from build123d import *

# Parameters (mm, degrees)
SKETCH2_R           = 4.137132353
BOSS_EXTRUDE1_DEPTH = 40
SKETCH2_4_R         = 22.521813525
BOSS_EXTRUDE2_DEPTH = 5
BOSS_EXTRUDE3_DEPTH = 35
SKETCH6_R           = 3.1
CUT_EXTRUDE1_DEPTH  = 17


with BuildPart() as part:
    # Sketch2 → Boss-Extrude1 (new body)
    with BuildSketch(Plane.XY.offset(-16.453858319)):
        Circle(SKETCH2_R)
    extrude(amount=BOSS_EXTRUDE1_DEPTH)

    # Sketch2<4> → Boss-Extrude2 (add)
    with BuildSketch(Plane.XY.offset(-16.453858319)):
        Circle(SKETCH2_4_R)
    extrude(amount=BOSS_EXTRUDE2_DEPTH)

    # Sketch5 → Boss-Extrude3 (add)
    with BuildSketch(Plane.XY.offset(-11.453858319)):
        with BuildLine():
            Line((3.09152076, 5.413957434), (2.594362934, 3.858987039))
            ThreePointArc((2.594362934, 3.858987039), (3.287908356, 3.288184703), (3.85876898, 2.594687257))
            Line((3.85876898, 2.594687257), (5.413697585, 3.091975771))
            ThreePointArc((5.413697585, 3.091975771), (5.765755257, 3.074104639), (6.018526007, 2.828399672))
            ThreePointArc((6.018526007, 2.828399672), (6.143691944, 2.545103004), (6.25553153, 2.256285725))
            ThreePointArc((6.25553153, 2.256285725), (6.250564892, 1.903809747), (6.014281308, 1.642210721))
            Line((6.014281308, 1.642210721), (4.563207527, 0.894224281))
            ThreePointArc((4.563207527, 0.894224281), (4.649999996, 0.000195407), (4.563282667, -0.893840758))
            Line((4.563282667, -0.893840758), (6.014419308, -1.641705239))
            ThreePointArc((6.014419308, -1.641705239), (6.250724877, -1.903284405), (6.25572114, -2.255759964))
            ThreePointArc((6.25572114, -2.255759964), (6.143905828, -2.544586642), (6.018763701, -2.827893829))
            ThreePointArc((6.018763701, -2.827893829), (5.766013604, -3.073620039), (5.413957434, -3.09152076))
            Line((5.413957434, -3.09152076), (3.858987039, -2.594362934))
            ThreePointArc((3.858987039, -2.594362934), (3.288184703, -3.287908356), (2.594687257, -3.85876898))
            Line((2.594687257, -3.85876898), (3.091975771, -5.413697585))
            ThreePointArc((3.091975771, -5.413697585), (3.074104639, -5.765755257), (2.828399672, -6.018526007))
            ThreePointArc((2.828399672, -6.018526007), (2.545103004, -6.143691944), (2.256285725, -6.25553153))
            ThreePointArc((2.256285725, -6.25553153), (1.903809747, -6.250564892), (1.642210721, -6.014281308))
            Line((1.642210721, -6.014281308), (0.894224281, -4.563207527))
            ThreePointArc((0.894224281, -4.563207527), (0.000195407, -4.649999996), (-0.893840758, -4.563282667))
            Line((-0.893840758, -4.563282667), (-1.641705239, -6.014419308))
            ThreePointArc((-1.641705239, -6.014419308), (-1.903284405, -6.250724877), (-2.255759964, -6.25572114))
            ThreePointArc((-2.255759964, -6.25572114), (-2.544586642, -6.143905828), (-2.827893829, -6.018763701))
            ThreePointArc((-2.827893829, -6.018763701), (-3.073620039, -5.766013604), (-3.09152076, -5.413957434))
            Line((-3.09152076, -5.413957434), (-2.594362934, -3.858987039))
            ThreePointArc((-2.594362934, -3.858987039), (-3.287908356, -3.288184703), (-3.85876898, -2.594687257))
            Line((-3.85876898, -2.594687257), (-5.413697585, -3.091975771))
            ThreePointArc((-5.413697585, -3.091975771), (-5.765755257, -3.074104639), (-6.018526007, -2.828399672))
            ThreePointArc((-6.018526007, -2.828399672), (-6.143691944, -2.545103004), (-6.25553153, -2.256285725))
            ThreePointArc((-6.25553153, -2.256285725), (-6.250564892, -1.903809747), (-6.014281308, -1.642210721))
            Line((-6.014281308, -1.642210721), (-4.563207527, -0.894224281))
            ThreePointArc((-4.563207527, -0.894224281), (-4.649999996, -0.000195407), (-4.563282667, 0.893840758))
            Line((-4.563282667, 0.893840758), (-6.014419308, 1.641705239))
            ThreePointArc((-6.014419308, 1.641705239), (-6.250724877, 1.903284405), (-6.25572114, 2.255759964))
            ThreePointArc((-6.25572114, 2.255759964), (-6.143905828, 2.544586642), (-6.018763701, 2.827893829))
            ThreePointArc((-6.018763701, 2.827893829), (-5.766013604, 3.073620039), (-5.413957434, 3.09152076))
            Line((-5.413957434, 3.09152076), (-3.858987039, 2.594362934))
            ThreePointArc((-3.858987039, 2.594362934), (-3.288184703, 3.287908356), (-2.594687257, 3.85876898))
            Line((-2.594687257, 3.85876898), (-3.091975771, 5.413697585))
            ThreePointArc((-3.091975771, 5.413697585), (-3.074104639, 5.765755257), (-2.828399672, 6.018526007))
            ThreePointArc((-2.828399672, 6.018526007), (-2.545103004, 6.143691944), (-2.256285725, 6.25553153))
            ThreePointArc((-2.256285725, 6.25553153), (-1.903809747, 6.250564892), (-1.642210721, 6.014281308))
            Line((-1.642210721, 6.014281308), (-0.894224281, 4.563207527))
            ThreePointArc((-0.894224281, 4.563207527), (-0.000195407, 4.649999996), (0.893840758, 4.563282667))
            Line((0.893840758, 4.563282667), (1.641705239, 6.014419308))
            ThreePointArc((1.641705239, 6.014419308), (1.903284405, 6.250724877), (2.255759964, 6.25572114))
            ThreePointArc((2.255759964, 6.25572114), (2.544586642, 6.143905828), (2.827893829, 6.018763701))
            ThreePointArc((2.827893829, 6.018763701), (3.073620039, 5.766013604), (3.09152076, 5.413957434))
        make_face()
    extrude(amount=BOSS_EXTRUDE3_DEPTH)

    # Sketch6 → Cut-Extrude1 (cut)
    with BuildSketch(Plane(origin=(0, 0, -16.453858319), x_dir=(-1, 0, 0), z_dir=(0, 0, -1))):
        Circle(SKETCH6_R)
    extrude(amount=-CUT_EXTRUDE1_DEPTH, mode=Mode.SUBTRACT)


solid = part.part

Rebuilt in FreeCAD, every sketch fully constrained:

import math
import FreeCAD as App
import Part
import Sketcher
from FreeCAD import Vector
Q = App.Units.Quantity

doc = App.newDocument("Part")
body = doc.addObject("PartDesign::Body", "Body")

# Sketch on XY plane
sketch1 = doc.addObject("Sketcher::SketchObject", "Sketch")
body.addObject(sketch1)
sketch1.AttachmentSupport = (doc.XY_Plane, [""])
sketch1.MapMode = "FlatFace"
sketch1.AttachmentOffset = App.Placement(Vector(0, 0, -16.453858), App.Rotation())
sketch1.addGeometry(Part.Circle(Vector(0, 0, 0), Vector(0, 0, 1), 4.1), False)
sketch1.addConstraint(Sketcher.Constraint("Coincident", 0, 3, -1, 1))
sketch1.addConstraint(Sketcher.Constraint("Diameter", 0, Q("8.274265 mm")))
pad1 = doc.addObject("PartDesign::Pad", "Pad")
body.addObject(pad1)
pad1.Profile = sketch1
pad1.Length = 40

# Sketch on XY plane
sketch2 = doc.addObject("Sketcher::SketchObject", "Sketch001")
body.addObject(sketch2)
sketch2.AttachmentSupport = (doc.XY_Plane, [""])
sketch2.MapMode = "FlatFace"
sketch2.AttachmentOffset = App.Placement(Vector(0, 0, -16.453858), App.Rotation())
sketch2.addGeometry(Part.Circle(Vector(0, 0, 0), Vector(0, 0, 1), 23), False)
sketch2.addConstraint(Sketcher.Constraint("Coincident", 0, 3, -1, 1))
sketch2.addConstraint(Sketcher.Constraint("Diameter", 0, Q("45.043627 mm")))
pad2 = doc.addObject("PartDesign::Pad", "Pad001")
body.addObject(pad2)
pad2.Profile = sketch2
pad2.Length = 5

# Sketch on XY plane
sketch3 = doc.addObject("Sketcher::SketchObject", "Sketch002")
body.addObject(sketch3)
sketch3.AttachmentSupport = (doc.XY_Plane, [""])
sketch3.MapMode = "FlatFace"
sketch3.AttachmentOffset = App.Placement(Vector(0, 0, -11.453858), App.Rotation())
sketch3.addGeometry(Part.LineSegment(Vector(2.59, 3.86, 0), Vector(3.09, 5.41, 0)), False)
sketch3.addGeometry(Part.ArcOfCircle(Part.Circle(Vector(2.62, 5.57, 0), Vector(0, 0, 1), 0.5), math.radians(-18), math.radians(65)), False)
sketch3.addGeometry(Part.ArcOfCircle(Part.Circle(Vector(0, 0, 0), Vector(0, 0, 1), 6.65), math.radians(64.83), math.radians(70.17)), False)
sketch3.addGeometry(Part.ArcOfCircle(Part.Circle(Vector(2.09, 5.79, 0), Vector(0, 0, 1), 0.5), math.radians(70), math.radians(153)), False)
sketch3.addGeometry(Part.LineSegment(Vector(1.64, 6.01, 0), Vector(0.89, 4.56, 0)), False)
sketch3.addGeometry(Part.ArcOfCircle(Part.Circle(Vector(0, 0, 0), Vector(0, 0, 1), 4.65), math.radians(79), math.radians(101)), False)
sketch3.addGeometry(Part.LineSegment(Vector(-0.89, 4.56, 0), Vector(-1.64, 6.01, 0)), False)
sketch3.addGeometry(Part.ArcOfCircle(Part.Circle(Vector(-2.09, 5.79, 0), Vector(0, 0, 1), 0.5), math.radians(27), math.radians(110)), False)
sketch3.addGeometry(Part.ArcOfCircle(Part.Circle(Vector(0, 0, 0), Vector(0, 0, 1), 6.65), math.radians(109.83), math.radians(115.17)), False)
sketch3.addGeometry(Part.ArcOfCircle(Part.Circle(Vector(-2.62, 5.57, 0), Vector(0, 0, 1), 0.5), math.radians(115), math.radians(198)), False)
sketch3.addGeometry(Part.LineSegment(Vector(-3.09, 5.41, 0), Vector(-2.59, 3.86, 0)), False)
sketch3.addGeometry(Part.ArcOfCircle(Part.Circle(Vector(0, 0, 0), Vector(0, 0, 1), 4.65), math.radians(124), math.radians(146)), False)
sketch3.addGeometry(Part.LineSegment(Vector(-3.86, 2.59, 0), Vector(-5.41, 3.09, 0)), False)
sketch3.addGeometry(Part.ArcOfCircle(Part.Circle(Vector(-5.57, 2.62, 0), Vector(0, 0, 1), 0.5), math.radians(72), math.radians(155)), False)
sketch3.addGeometry(Part.ArcOfCircle(Part.Circle(Vector(0, 0, 0), Vector(0, 0, 1), 6.65), math.radians(154.83), math.radians(160.17)), False)
sketch3.addGeometry(Part.ArcOfCircle(Part.Circle(Vector(-5.79, 2.09, 0), Vector(0, 0, 1), 0.5), math.radians(160), math.radians(243)), False)
sketch3.addGeometry(Part.LineSegment(Vector(-6.01, 1.64, 0), Vector(-4.56, 0.89, 0)), False)
sketch3.addGeometry(Part.ArcOfCircle(Part.Circle(Vector(0, 0, 0), Vector(0, 0, 1), 4.65), math.radians(169), math.radians(191)), False)
sketch3.addGeometry(Part.LineSegment(Vector(-4.56, -0.89, 0), Vector(-6.01, -1.64, 0)), False)
sketch3.addGeometry(Part.ArcOfCircle(Part.Circle(Vector(-5.79, -2.09, 0), Vector(0, 0, 1), 0.5), math.radians(117), math.radians(200)), False)
sketch3.addGeometry(Part.ArcOfCircle(Part.Circle(Vector(0, 0, 0), Vector(0, 0, 1), 6.65), math.radians(-160.17), math.radians(-154.83)), False)
sketch3.addGeometry(Part.ArcOfCircle(Part.Circle(Vector(-5.57, -2.62, 0), Vector(0, 0, 1), 0.5), math.radians(-155), math.radians(-72)), False)
sketch3.addGeometry(Part.LineSegment(Vector(-5.41, -3.09, 0), Vector(-3.86, -2.59, 0)), False)
sketch3.addGeometry(Part.ArcOfCircle(Part.Circle(Vector(0, 0, 0), Vector(0, 0, 1), 4.65), math.radians(-146), math.radians(-124)), False)
sketch3.addGeometry(Part.LineSegment(Vector(-2.59, -3.86, 0), Vector(-3.09, -5.41, 0)), False)
sketch3.addGeometry(Part.ArcOfCircle(Part.Circle(Vector(-2.62, -5.57, 0), Vector(0, 0, 1), 0.5), math.radians(162), math.radians(245)), False)
sketch3.addGeometry(Part.ArcOfCircle(Part.Circle(Vector(0, 0, 0), Vector(0, 0, 1), 6.65), math.radians(-115.17), math.radians(-109.83)), False)
sketch3.addGeometry(Part.ArcOfCircle(Part.Circle(Vector(-2.09, -5.79, 0), Vector(0, 0, 1), 0.5), math.radians(-110), math.radians(-27)), False)
sketch3.addGeometry(Part.LineSegment(Vector(-1.64, -6.01, 0), Vector(-0.89, -4.56, 0)), False)
sketch3.addGeometry(Part.ArcOfCircle(Part.Circle(Vector(0, 0, 0), Vector(0, 0, 1), 4.65), math.radians(-101), math.radians(-79)), False)
sketch3.addGeometry(Part.LineSegment(Vector(0.89, -4.56, 0), Vector(1.64, -6.01, 0)), False)
sketch3.addGeometry(Part.ArcOfCircle(Part.Circle(Vector(2.09, -5.79, 0), Vector(0, 0, 1), 0.5), math.radians(-153), math.radians(-70)), False)
sketch3.addGeometry(Part.ArcOfCircle(Part.Circle(Vector(0, 0, 0), Vector(0, 0, 1), 6.65), math.radians(-70.17), math.radians(-64.83)), False)
sketch3.addGeometry(Part.ArcOfCircle(Part.Circle(Vector(2.62, -5.57, 0), Vector(0, 0, 1), 0.5), math.radians(-65), math.radians(18)), False)
sketch3.addGeometry(Part.LineSegment(Vector(3.09, -5.41, 0), Vector(2.59, -3.86, 0)), False)
sketch3.addGeometry(Part.ArcOfCircle(Part.Circle(Vector(0, 0, 0), Vector(0, 0, 1), 4.65), math.radians(-56), math.radians(-34)), False)
sketch3.addGeometry(Part.LineSegment(Vector(3.86, -2.59, 0), Vector(5.41, -3.09, 0)), False)
sketch3.addGeometry(Part.ArcOfCircle(Part.Circle(Vector(5.57, -2.62, 0), Vector(0, 0, 1), 0.5), math.radians(-108), math.radians(-25)), False)
sketch3.addGeometry(Part.ArcOfCircle(Part.Circle(Vector(0, 0, 0), Vector(0, 0, 1), 6.65), math.radians(-25.17), math.radians(-19.83)), False)
sketch3.addGeometry(Part.ArcOfCircle(Part.Circle(Vector(5.79, -2.09, 0), Vector(0, 0, 1), 0.5), math.radians(-20), math.radians(63)), False)
sketch3.addGeometry(Part.LineSegment(Vector(6.01, -1.64, 0), Vector(4.56, -0.89, 0)), False)
sketch3.addGeometry(Part.ArcOfCircle(Part.Circle(Vector(0, 0, 0), Vector(0, 0, 1), 4.65), math.radians(-11), math.radians(11)), False)
sketch3.addGeometry(Part.LineSegment(Vector(4.56, 0.89, 0), Vector(6.01, 1.64, 0)), False)
sketch3.addGeometry(Part.ArcOfCircle(Part.Circle(Vector(5.79, 2.09, 0), Vector(0, 0, 1), 0.5), math.radians(-63), math.radians(20)), False)
sketch3.addGeometry(Part.ArcOfCircle(Part.Circle(Vector(0, 0, 0), Vector(0, 0, 1), 6.65), math.radians(19.83), math.radians(25.17)), False)
sketch3.addGeometry(Part.ArcOfCircle(Part.Circle(Vector(5.57, 2.62, 0), Vector(0, 0, 1), 0.5), math.radians(25), math.radians(108)), False)
sketch3.addGeometry(Part.LineSegment(Vector(5.41, 3.09, 0), Vector(3.86, 2.59, 0)), False)
sketch3.addGeometry(Part.ArcOfCircle(Part.Circle(Vector(0, 0, 0), Vector(0, 0, 1), 4.65), math.radians(34), math.radians(56)), False)
sketch3.addConstraint(Sketcher.Constraint("Tangent", 0, 2, 1, 1))
sketch3.addConstraint(Sketcher.Constraint("Tangent", 1, 2, 2, 1))
sketch3.addConstraint(Sketcher.Constraint("Tangent", 2, 2, 3, 1))
sketch3.addConstraint(Sketcher.Constraint("Tangent", 3, 2, 4, 1))
sketch3.addConstraint(Sketcher.Constraint("Coincident", 4, 2, 5, 1))
sketch3.addConstraint(Sketcher.Constraint("Coincident", 5, 2, 6, 1))
sketch3.addConstraint(Sketcher.Constraint("Tangent", 6, 2, 7, 1))
sketch3.addConstraint(Sketcher.Constraint("Tangent", 7, 2, 8, 1))
sketch3.addConstraint(Sketcher.Constraint("Tangent", 8, 2, 9, 1))
sketch3.addConstraint(Sketcher.Constraint("Tangent", 9, 2, 10, 1))
sketch3.addConstraint(Sketcher.Constraint("Coincident", 10, 2, 11, 1))
sketch3.addConstraint(Sketcher.Constraint("Coincident", 11, 2, 12, 1))
sketch3.addConstraint(Sketcher.Constraint("Tangent", 12, 2, 13, 1))
sketch3.addConstraint(Sketcher.Constraint("Tangent", 13, 2, 14, 1))
sketch3.addConstraint(Sketcher.Constraint("Tangent", 14, 2, 15, 1))
sketch3.addConstraint(Sketcher.Constraint("Tangent", 15, 2, 16, 1))
sketch3.addConstraint(Sketcher.Constraint("Coincident", 16, 2, 17, 1))
sketch3.addConstraint(Sketcher.Constraint("Coincident", 17, 2, 18, 1))
sketch3.addConstraint(Sketcher.Constraint("Tangent", 18, 2, 19, 1))
sketch3.addConstraint(Sketcher.Constraint("Tangent", 19, 2, 20, 1))
sketch3.addConstraint(Sketcher.Constraint("Tangent", 20, 2, 21, 1))
sketch3.addConstraint(Sketcher.Constraint("Tangent", 21, 2, 22, 1))
sketch3.addConstraint(Sketcher.Constraint("Coincident", 22, 2, 23, 1))
sketch3.addConstraint(Sketcher.Constraint("Coincident", 23, 2, 24, 1))
sketch3.addConstraint(Sketcher.Constraint("Tangent", 24, 2, 25, 1))
sketch3.addConstraint(Sketcher.Constraint("Tangent", 25, 2, 26, 1))
sketch3.addConstraint(Sketcher.Constraint("Tangent", 26, 2, 27, 1))
sketch3.addConstraint(Sketcher.Constraint("Tangent", 27, 2, 28, 1))
sketch3.addConstraint(Sketcher.Constraint("Coincident", 28, 2, 29, 1))
sketch3.addConstraint(Sketcher.Constraint("Coincident", 29, 2, 30, 1))
sketch3.addConstraint(Sketcher.Constraint("Tangent", 30, 2, 31, 1))
sketch3.addConstraint(Sketcher.Constraint("Tangent", 31, 2, 32, 1))
sketch3.addConstraint(Sketcher.Constraint("Tangent", 32, 2, 33, 1))
sketch3.addConstraint(Sketcher.Constraint("Tangent", 33, 2, 34, 1))
sketch3.addConstraint(Sketcher.Constraint("Coincident", 34, 2, 35, 1))
sketch3.addConstraint(Sketcher.Constraint("Coincident", 35, 2, 36, 1))
sketch3.addConstraint(Sketcher.Constraint("Tangent", 36, 2, 37, 1))
sketch3.addConstraint(Sketcher.Constraint("Tangent", 37, 2, 38, 1))
sketch3.addConstraint(Sketcher.Constraint("Tangent", 38, 2, 39, 1))
sketch3.addConstraint(Sketcher.Constraint("Tangent", 39, 2, 40, 1))
sketch3.addConstraint(Sketcher.Constraint("Coincident", 40, 2, 41, 1))
sketch3.addConstraint(Sketcher.Constraint("Coincident", 41, 2, 42, 1))
sketch3.addConstraint(Sketcher.Constraint("Tangent", 42, 2, 43, 1))
sketch3.addConstraint(Sketcher.Constraint("Tangent", 43, 2, 44, 1))
sketch3.addConstraint(Sketcher.Constraint("Tangent", 44, 2, 45, 1))
sketch3.addConstraint(Sketcher.Constraint("Tangent", 45, 2, 46, 1))
sketch3.addConstraint(Sketcher.Constraint("Coincident", 46, 2, 47, 1))
sketch3.addConstraint(Sketcher.Constraint("Coincident", 47, 2, 0, 1))
sketch3.addConstraint(Sketcher.Constraint("Coincident", 2, 3, -1, 1))
sketch3.addConstraint(Sketcher.Constraint("Coincident", 5, 3, -1, 1))
sketch3.addConstraint(Sketcher.Constraint("Coincident", 8, 3, -1, 1))
sketch3.addConstraint(Sketcher.Constraint("Coincident", 11, 3, -1, 1))
sketch3.addConstraint(Sketcher.Constraint("Coincident", 14, 3, -1, 1))
sketch3.addConstraint(Sketcher.Constraint("Coincident", 17, 3, -1, 1))
sketch3.addConstraint(Sketcher.Constraint("Coincident", 20, 3, -1, 1))
sketch3.addConstraint(Sketcher.Constraint("Coincident", 23, 3, -1, 1))
sketch3.addConstraint(Sketcher.Constraint("Coincident", 26, 3, -1, 1))
sketch3.addConstraint(Sketcher.Constraint("Coincident", 29, 3, -1, 1))
sketch3.addConstraint(Sketcher.Constraint("Coincident", 32, 3, -1, 1))
sketch3.addConstraint(Sketcher.Constraint("Coincident", 35, 3, -1, 1))
sketch3.addConstraint(Sketcher.Constraint("Coincident", 38, 3, -1, 1))
sketch3.addConstraint(Sketcher.Constraint("Coincident", 41, 3, -1, 1))
sketch3.addConstraint(Sketcher.Constraint("Coincident", 44, 3, -1, 1))
sketch3.addConstraint(Sketcher.Constraint("Coincident", 47, 3, -1, 1))
sketch3.addConstraint(Sketcher.Constraint("Equal", 1, 3))
sketch3.addConstraint(Sketcher.Constraint("Equal", 3, 7))
sketch3.addConstraint(Sketcher.Constraint("Equal", 2, 8))
sketch3.addConstraint(Sketcher.Constraint("Equal", 7, 9))
sketch3.addConstraint(Sketcher.Constraint("Equal", 5, 11))
sketch3.addConstraint(Sketcher.Constraint("Equal", 9, 13))
sketch3.addConstraint(Sketcher.Constraint("Equal", 8, 14))
sketch3.addConstraint(Sketcher.Constraint("Equal", 13, 15))
sketch3.addConstraint(Sketcher.Constraint("Equal", 11, 17))
sketch3.addConstraint(Sketcher.Constraint("Equal", 15, 19))
sketch3.addConstraint(Sketcher.Constraint("Equal", 14, 20))
sketch3.addConstraint(Sketcher.Constraint("Equal", 19, 21))
sketch3.addConstraint(Sketcher.Constraint("Equal", 17, 23))
sketch3.addConstraint(Sketcher.Constraint("Equal", 21, 25))
sketch3.addConstraint(Sketcher.Constraint("Equal", 20, 26))
sketch3.addConstraint(Sketcher.Constraint("Equal", 25, 27))
sketch3.addConstraint(Sketcher.Constraint("Equal", 23, 29))
sketch3.addConstraint(Sketcher.Constraint("Equal", 27, 31))
sketch3.addConstraint(Sketcher.Constraint("Equal", 26, 32))
sketch3.addConstraint(Sketcher.Constraint("Equal", 31, 33))
sketch3.addConstraint(Sketcher.Constraint("Equal", 29, 35))
sketch3.addConstraint(Sketcher.Constraint("Equal", 33, 37))
sketch3.addConstraint(Sketcher.Constraint("Equal", 32, 38))
sketch3.addConstraint(Sketcher.Constraint("Equal", 37, 39))
sketch3.addConstraint(Sketcher.Constraint("Equal", 35, 41))
sketch3.addConstraint(Sketcher.Constraint("Equal", 39, 43))
sketch3.addConstraint(Sketcher.Constraint("Equal", 38, 44))
sketch3.addConstraint(Sketcher.Constraint("Equal", 43, 45))
sketch3.addConstraint(Sketcher.Constraint("Equal", 41, 47))
sketch3.addConstraint(Sketcher.Constraint("Symmetric", 0, 2, 24, 2, -1, 1))
sketch3.addConstraint(Sketcher.Constraint("Symmetric", 3, 2, 27, 2, -1, 1))
sketch3.addConstraint(Sketcher.Constraint("Symmetric", 6, 2, 30, 2, -1, 1))
sketch3.addConstraint(Sketcher.Constraint("Symmetric", 9, 2, 33, 2, -1, 1))
sketch3.addConstraint(Sketcher.Constraint("Symmetric", 12, 2, 36, 2, -1, 1))
sketch3.addConstraint(Sketcher.Constraint("Symmetric", 15, 2, 39, 2, -1, 1))
sketch3.addConstraint(Sketcher.Constraint("Symmetric", 18, 2, 42, 2, -1, 1))
sketch3.addConstraint(Sketcher.Constraint("Symmetric", 21, 2, 45, 2, -1, 1))
sketch3.addConstraint(Sketcher.Constraint("Perpendicular", 0, 12))
sketch3.addConstraint(Sketcher.Constraint("Perpendicular", 4, 16))
sketch3.addConstraint(Sketcher.Constraint("Perpendicular", 6, 18))
sketch3.addConstraint(Sketcher.Constraint("Perpendicular", 10, 22))
sketch3.addConstraint(Sketcher.Constraint("Equal", 0, 4))
sketch3.addConstraint(Sketcher.Constraint("Equal", 4, 6))
sketch3.addConstraint(Sketcher.Constraint("Equal", 6, 10))
sketch3.addConstraint(Sketcher.Constraint("Equal", 10, 12))
sketch3.addConstraint(Sketcher.Constraint("Equal", 12, 16))
sketch3.addConstraint(Sketcher.Constraint("Equal", 16, 18))
sketch3.addConstraint(Sketcher.Constraint("Equal", 18, 22))
sketch3.addConstraint(Sketcher.Constraint("Radius", 1, Q("0.5 mm")))
sketch3.addConstraint(Sketcher.Constraint("Radius", 2, Q("6.65 mm")))
sketch3.addConstraint(Sketcher.Constraint("Radius", 5, Q("4.65 mm")))
sketch3.addConstraint(Sketcher.Constraint("DistanceX", 8, 2, -1, 1, Q("2.8284 mm")))
sketch3.addConstraint(Sketcher.Constraint("DistanceX", -1, 1, 1, 3, Q("2.61527 mm")))
sketch3.addConstraint(Sketcher.Constraint("DistanceX", 7, 3, -1, 1, Q("2.08664 mm")))
sketch3.addConstraint(Sketcher.Constraint("DistanceX", -1, 1, 0, 2, Q("3.091521 mm")))
sketch3.addConstraint(Sketcher.Constraint("DistanceX", -1, 1, 2, 2, Q("2.25576 mm")))
pad3 = doc.addObject("PartDesign::Pad", "Pad002")
body.addObject(pad3)
pad3.Profile = sketch3
pad3.Length = 35

# Sketch on XY plane
sketch4 = doc.addObject("Sketcher::SketchObject", "Sketch003")
body.addObject(sketch4)
sketch4.AttachmentSupport = (doc.XY_Plane, [""])
sketch4.MapMode = "FlatFace"
sketch4.AttachmentOffset = App.Placement(Vector(0, 0, -16.453858), App.Rotation())
sketch4.addGeometry(Part.Circle(Vector(0, 0, 0), Vector(0, 0, 1), 3.1), False)
sketch4.addConstraint(Sketcher.Constraint("Coincident", 0, 3, -1, 1))
sketch4.addConstraint(Sketcher.Constraint("Diameter", 0, Q("6.2 mm")))
pocket1 = doc.addObject("PartDesign::Pocket", "Pocket")
body.addObject(pocket1)
pocket1.Profile = sketch4
pocket1.Length = 17
pocket1.Reversed = True

doc.recompute()
